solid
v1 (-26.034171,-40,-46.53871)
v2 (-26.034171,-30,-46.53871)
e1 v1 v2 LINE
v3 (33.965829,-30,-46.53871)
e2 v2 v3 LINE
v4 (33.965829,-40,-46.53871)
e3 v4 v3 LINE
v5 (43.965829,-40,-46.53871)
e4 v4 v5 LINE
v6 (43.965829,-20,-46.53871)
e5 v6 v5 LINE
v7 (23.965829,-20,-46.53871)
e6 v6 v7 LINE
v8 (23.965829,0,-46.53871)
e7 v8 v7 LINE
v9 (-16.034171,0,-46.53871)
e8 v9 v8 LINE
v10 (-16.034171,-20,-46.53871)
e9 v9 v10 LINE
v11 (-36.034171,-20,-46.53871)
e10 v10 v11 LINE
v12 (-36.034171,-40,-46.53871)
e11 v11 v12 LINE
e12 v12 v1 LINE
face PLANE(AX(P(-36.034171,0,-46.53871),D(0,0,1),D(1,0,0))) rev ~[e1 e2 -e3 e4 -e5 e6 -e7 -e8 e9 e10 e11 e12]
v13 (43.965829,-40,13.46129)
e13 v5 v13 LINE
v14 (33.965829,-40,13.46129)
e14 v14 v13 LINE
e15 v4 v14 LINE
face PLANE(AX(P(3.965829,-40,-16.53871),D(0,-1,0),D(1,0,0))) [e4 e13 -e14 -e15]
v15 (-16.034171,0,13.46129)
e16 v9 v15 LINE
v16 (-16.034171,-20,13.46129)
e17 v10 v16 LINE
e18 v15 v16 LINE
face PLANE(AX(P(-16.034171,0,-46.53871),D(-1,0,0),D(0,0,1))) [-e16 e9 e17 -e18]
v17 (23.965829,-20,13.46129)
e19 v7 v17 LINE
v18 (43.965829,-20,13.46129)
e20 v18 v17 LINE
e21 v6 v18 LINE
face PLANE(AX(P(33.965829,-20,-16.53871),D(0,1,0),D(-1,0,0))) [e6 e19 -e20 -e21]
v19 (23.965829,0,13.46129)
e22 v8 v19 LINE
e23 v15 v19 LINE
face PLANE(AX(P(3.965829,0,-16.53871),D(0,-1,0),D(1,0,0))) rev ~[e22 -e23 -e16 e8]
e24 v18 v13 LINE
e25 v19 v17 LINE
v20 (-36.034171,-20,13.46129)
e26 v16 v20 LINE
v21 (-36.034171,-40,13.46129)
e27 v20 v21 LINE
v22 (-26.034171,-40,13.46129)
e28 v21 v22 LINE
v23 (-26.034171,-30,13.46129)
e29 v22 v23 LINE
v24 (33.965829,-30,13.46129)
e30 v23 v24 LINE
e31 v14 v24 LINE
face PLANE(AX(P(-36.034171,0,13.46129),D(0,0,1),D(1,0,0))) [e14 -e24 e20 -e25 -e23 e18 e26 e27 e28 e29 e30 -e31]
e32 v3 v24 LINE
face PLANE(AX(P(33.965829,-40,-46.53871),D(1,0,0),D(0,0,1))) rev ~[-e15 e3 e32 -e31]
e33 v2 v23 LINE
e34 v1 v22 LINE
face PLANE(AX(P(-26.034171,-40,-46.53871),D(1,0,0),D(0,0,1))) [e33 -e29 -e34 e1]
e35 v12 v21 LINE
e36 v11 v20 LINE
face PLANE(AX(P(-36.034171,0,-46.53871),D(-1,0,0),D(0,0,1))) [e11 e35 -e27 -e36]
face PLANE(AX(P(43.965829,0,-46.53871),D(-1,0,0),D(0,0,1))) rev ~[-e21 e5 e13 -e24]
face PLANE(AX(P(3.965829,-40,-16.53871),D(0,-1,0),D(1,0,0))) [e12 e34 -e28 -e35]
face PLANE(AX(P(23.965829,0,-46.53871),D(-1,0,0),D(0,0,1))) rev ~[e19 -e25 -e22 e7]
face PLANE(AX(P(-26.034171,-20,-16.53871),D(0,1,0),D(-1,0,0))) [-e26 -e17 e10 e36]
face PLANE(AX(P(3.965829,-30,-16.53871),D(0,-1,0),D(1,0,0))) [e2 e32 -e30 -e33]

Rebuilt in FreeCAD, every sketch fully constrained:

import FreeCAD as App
import Part
import Sketcher
from FreeCAD import Vector
Q = App.Units.Quantity


def add_polygon(sketch, points):
    """Adds a closed chain of lines whose ends are joined by coincident constraints."""
    first, n = sketch.GeometryCount, len(points)
    for a, b in zip(points, points[1:] + points[:1]):
        sketch.addGeometry(Part.LineSegment(App.Vector(*a, 0), App.Vector(*b, 0)), False)
    for i in range(n):
        sketch.addConstraint(Sketcher.Constraint("Coincident", first + i, 2, first + (i + 1) % n, 1))

doc = App.newDocument("Part")
body = doc.addObject("PartDesign::Body", "Body")

sketch1 = body.newObject("Sketcher::SketchObject", "Sketch")
sketch1.AttachmentSupport = (doc.getObject("XZ_Plane"), [""])
sketch1.MapMode = "FlatFace"
add_polygon(sketch1, [(-36.034171, 13.46129), (-36.034171, -46.53871), (43.965829, -46.53871), (43.965829, 13.46129)])
sketch1.addConstraint(Sketcher.Constraint("Vertical", 0))
sketch1.addConstraint(Sketcher.Constraint("Horizontal", 1))
sketch1.addConstraint(Sketcher.Constraint("Vertical", 2))
sketch1.addConstraint(Sketcher.Constraint("Horizontal", 3))
sketch1.addConstraint(Sketcher.Constraint("DistanceX", 1, 1, 1, 2, Q("80 mm")))
sketch1.addConstraint(Sketcher.Constraint("DistanceY", 0, 2, 0, 1, Q("60 mm")))
sketch1.addConstraint(Sketcher.Constraint("DistanceX", 0, 2, -1, 1, Q("36.034171 mm")))
sketch1.addConstraint(Sketcher.Constraint("DistanceY", 0, 2, -1, 1, Q("46.53871 mm")))
pad1 = body.newObject("PartDesign::Pad", "Pad")
pad1.Profile = sketch1
pad1.Length = 40

sketch2 = body.newObject("Sketcher::SketchObject", "Sketch001")
sketch2.AttachmentSupport = (doc.getObject("XZ_Plane"), [""])
sketch2.MapMode = "FlatFace"
sketch2.AttachmentOffset = App.Placement(Vector(0, 0, 40), App.Rotation())
add_polygon(sketch2, [(-26.034171, 13.46129), (-26.034171, -46.53871), (33.965829, -46.53871), (33.965829, 13.46129)])
sketch2.addConstraint(Sketcher.Constraint("Vertical", 0))
sketch2.addConstraint(Sketcher.Constraint("Horizontal", 1))
sketch2.addConstraint(Sketcher.Constraint("Vertical", 2))
sketch2.addConstraint(Sketcher.Constraint("Horizontal", 3))
sketch2.addConstraint(Sketcher.Constraint("Equal", 3, 0))
sketch2.addConstraint(Sketcher.Constraint("DistanceX", 1, 1, 1, 2, Q("60 mm")))
sketch2.addConstraint(Sketcher.Constraint("DistanceX", 0, 2, -1, 1, Q("26.034171 mm")))
sketch2.addConstraint(Sketcher.Constraint("DistanceY", 0, 2, -1, 1, Q("46.53871 mm")))
pocket1 = body.newObject("PartDesign::Pocket", "Pocket")
pocket1.Profile = sketch2
pocket1.Length = 10

sketch3 = body.newObject("Sketcher::SketchObject", "Sketch002")
sketch3.AttachmentSupport = (doc.getObject("XZ_Plane"), [""])
sketch3.MapMode = "FlatFace"
add_polygon(sketch3, [(-16.034171, 13.46129), (-16.034171, -46.53871), (-36.034171, -46.53871), (-36.034171, 13.46129)])
add_polygon(sketch3, [(43.965829, 13.46129), (43.965829, -46.53871), (23.965829, -46.53871), (23.965829, 13.46129)])
sketch3.addConstraint(Sketcher.Constraint("Vertical", 0))
sketch3.addConstraint(Sketcher.Constraint("Horizontal", 1))
sketch3.addConstraint(Sketcher.Constraint("Vertical", 2))
sketch3.addConstraint(Sketcher.Constraint("Horizontal", 3))
sketch3.addConstraint(Sketcher.Constraint("Vertical", 4))
sketch3.addConstraint(Sketcher.Constraint("Horizontal", 5))
sketch3.addConstraint(Sketcher.Constraint("Vertical", 6))
sketch3.addConstraint(Sketcher.Constraint("Horizontal", 7))
sketch3.addConstraint(Sketcher.Constraint("Horizontal", 1, 2, 4, 2))
sketch3.addConstraint(Sketcher.Constraint("Horizontal", 3, 2, 6, 2))
sketch3.addConstraint(Sketcher.Constraint("Equal", 3, 5))
sketch3.addConstraint(Sketcher.Constraint("DistanceX", 1, 2, 1, 1, Q("20 mm")))
sketch3.addConstraint(Sketcher.Constraint("DistanceY", 0, 2, 0, 1, Q("60 mm")))
sketch3.addConstraint(Sketcher.Constraint("DistanceX", 0, 2, 4, 2, Q("60 mm")))
sketch3.addConstraint(Sketcher.Constraint("DistanceX", 0, 2, -1, 1, Q("16.034171 mm")))
sketch3.addConstraint(Sketcher.Constraint("DistanceY", 0, 2, -1, 1, Q("46.53871 mm")))
pocket2 = body.newObject("PartDesign::Pocket", "Pocket001")
pocket2.Profile = sketch3
pocket2.Length = 20
pocket2.Reversed = True

doc.recompute()
